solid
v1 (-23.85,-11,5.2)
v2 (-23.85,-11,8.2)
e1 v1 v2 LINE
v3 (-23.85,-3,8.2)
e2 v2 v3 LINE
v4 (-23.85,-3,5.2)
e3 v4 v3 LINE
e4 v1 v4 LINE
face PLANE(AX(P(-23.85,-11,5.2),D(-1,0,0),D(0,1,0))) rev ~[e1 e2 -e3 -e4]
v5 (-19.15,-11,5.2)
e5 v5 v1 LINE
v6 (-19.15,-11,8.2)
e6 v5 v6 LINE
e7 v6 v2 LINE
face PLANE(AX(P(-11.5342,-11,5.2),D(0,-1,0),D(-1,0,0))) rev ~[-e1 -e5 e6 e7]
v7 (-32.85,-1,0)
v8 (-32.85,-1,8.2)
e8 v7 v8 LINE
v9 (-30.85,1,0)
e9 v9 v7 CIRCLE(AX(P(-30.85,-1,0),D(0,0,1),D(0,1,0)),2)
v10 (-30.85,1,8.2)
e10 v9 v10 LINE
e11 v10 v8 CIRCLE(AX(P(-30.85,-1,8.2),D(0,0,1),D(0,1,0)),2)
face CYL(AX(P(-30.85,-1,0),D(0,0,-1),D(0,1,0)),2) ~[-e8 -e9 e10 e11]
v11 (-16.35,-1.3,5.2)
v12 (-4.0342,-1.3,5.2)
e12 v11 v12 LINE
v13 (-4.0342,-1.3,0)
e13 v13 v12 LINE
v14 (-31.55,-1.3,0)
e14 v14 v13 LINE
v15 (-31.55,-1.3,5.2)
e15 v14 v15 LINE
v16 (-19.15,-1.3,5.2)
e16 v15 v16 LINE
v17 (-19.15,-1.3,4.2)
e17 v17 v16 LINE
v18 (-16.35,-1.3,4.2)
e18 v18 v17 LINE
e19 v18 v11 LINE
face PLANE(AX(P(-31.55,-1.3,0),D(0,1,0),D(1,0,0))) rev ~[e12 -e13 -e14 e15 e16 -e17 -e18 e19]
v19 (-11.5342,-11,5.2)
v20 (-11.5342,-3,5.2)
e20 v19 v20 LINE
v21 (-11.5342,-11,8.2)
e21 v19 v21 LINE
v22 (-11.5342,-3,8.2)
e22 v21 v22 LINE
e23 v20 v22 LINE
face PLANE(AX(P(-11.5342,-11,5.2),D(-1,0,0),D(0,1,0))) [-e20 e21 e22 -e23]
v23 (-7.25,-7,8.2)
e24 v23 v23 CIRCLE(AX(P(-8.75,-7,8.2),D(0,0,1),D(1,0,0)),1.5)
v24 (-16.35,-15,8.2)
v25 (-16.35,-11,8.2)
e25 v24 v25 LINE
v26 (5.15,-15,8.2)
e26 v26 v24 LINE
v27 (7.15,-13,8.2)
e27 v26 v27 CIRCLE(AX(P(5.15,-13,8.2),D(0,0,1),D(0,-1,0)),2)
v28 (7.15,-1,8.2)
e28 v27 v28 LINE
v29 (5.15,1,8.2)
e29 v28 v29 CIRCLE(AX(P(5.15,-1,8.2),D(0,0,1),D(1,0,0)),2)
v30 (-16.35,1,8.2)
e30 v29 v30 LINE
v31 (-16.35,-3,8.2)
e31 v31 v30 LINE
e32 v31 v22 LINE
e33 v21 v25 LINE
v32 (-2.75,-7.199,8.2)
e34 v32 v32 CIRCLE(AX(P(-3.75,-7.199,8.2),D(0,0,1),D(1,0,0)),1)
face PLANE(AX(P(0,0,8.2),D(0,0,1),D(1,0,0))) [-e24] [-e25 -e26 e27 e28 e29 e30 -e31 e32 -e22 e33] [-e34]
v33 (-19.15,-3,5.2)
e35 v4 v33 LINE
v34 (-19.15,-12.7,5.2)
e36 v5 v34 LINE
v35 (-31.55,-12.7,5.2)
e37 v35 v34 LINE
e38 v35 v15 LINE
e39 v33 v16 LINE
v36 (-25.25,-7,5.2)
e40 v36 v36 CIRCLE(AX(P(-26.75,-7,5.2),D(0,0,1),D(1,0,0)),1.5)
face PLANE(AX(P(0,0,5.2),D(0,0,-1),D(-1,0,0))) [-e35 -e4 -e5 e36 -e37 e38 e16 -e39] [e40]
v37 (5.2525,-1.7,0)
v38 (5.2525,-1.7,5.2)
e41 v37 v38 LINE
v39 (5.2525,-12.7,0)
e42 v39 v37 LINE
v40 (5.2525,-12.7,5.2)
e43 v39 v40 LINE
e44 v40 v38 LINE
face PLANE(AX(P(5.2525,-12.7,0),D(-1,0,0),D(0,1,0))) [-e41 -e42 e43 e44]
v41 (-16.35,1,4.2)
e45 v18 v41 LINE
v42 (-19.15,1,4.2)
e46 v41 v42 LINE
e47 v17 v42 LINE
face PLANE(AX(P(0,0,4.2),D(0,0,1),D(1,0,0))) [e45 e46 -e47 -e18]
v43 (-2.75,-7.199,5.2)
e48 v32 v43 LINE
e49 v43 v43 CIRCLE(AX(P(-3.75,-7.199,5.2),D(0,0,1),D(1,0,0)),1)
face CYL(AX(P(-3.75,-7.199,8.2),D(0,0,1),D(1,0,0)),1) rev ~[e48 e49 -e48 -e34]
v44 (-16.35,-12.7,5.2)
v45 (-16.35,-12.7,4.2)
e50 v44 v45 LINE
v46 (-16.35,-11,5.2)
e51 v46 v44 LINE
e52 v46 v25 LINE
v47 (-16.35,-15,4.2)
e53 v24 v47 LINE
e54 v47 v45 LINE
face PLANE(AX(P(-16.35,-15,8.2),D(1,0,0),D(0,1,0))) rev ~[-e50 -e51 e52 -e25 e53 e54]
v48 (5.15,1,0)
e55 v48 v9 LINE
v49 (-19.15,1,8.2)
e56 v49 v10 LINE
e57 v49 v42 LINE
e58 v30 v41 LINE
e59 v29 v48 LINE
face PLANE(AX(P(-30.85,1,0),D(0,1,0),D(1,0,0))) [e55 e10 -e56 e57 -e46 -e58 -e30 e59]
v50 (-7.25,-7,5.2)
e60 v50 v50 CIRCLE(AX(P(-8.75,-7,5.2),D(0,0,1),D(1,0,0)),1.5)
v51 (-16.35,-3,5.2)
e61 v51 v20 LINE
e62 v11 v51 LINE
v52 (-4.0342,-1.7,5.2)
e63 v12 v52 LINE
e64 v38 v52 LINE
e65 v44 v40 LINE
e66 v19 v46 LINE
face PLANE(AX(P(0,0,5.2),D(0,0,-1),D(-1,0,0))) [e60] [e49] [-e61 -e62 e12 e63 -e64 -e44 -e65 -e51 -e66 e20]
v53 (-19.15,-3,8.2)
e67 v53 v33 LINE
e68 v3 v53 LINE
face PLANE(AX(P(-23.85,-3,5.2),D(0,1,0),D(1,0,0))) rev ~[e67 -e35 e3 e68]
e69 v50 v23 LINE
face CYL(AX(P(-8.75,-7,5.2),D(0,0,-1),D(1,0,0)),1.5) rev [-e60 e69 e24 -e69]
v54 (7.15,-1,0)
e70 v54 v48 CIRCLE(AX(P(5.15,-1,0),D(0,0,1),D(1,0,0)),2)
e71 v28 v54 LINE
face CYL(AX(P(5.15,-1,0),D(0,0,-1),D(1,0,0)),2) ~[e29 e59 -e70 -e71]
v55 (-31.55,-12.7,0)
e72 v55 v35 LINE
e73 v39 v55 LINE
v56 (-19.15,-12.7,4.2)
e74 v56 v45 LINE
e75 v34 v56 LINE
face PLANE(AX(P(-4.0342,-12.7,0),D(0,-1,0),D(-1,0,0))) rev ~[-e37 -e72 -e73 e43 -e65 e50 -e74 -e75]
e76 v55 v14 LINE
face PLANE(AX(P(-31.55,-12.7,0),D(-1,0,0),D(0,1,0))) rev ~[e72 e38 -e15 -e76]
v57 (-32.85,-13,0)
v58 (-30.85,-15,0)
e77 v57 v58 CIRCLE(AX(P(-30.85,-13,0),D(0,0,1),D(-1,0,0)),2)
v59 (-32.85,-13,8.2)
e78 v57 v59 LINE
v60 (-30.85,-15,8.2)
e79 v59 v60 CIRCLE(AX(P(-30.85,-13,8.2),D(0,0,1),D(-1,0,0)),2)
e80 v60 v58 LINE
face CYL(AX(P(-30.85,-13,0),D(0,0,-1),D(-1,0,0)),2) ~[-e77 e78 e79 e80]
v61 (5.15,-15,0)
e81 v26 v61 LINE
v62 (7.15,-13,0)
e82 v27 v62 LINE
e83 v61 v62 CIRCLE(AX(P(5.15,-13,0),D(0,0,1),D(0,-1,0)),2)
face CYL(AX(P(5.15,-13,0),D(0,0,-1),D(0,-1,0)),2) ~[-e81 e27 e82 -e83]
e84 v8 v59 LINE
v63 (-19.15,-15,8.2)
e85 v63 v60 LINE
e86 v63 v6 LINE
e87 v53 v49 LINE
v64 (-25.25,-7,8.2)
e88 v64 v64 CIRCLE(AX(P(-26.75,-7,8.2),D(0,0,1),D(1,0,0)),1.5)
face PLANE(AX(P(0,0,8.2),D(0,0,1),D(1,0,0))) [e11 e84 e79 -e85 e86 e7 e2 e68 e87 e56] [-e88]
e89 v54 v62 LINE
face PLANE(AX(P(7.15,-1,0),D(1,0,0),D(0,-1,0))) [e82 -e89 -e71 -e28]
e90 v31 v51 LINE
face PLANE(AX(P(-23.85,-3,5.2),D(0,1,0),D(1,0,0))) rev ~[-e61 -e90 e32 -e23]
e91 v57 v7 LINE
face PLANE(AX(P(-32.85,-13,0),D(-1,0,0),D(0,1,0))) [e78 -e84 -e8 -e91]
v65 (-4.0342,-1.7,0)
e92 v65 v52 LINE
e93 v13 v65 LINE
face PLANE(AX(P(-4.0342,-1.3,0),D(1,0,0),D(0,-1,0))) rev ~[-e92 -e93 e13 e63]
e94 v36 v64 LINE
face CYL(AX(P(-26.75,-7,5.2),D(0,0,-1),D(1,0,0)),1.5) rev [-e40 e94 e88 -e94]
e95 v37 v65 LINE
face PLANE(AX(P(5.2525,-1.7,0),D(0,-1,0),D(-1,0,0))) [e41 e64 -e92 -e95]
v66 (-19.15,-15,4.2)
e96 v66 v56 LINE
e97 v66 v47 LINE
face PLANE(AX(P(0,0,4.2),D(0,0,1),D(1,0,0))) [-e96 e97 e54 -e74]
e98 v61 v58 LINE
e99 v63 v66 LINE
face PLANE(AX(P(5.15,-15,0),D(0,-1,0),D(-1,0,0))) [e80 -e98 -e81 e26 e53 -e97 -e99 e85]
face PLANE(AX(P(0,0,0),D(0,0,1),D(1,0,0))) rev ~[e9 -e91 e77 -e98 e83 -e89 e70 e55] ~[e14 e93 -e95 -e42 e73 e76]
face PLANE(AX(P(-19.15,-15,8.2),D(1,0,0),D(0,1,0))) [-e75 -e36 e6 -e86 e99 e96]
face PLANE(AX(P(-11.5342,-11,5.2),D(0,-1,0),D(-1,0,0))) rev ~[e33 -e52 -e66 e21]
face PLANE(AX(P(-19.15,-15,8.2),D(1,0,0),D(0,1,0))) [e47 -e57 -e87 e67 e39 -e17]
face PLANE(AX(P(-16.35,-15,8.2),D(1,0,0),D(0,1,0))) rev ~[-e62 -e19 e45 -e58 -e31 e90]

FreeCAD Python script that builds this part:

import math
import FreeCAD as App
import Part
import Sketcher
Q = App.Units.Quantity

doc = App.newDocument("Part")
body = doc.addObject("PartDesign::Body", "Body")

# Sketch on XY plane
sketch1 = body.newObject("Sketcher::SketchObject", "Sketch")
sketch1.AttachmentSupport = (doc.getObject("XY_Plane"), [""])
sketch1.MapMode = "FlatFace"
sketch1.addGeometry(Part.LineSegment(App.Vector(5.15, 1, 0), App.Vector(-30.85, 1, 0)), False)
sketch1.addGeometry(Part.ArcOfCircle(Part.Circle(App.Vector(-30.85, -1, 0), App.Vector(0, 0, 1), 2), math.radians(90), math.radians(180)), False)
sketch1.addGeometry(Part.LineSegment(App.Vector(-32.85, -1, 0), App.Vector(-32.85, -13, 0)), False)
sketch1.addGeometry(Part.ArcOfCircle(Part.Circle(App.Vector(-30.85, -13, 0), App.Vector(0, 0, 1), 2), math.radians(180), math.radians(270)), False)
sketch1.addGeometry(Part.LineSegment(App.Vector(-30.85, -15, 0), App.Vector(5.15, -15, 0)), False)
sketch1.addGeometry(Part.ArcOfCircle(Part.Circle(App.Vector(5.15, -13, 0), App.Vector(0, 0, 1), 2), math.radians(-90), math.radians(0)), False)
sketch1.addGeometry(Part.LineSegment(App.Vector(7.15, -13, 0), App.Vector(7.15, -1, 0)), False)
sketch1.addGeometry(Part.ArcOfCircle(Part.Circle(App.Vector(5.15, -1, 0), App.Vector(0, 0, 1), 2), math.radians(0), math.radians(90)), False)
sketch1.addGeometry(Part.LineSegment(App.Vector(-5.5342, -12, 0), App.Vector(-30.85, -12, 0)), False)
sketch1.addGeometry(Part.LineSegment(App.Vector(-30.85, -12, 0), App.Vector(-30.85, -2, 0)), False)
sketch1.addGeometry(Part.LineSegment(App.Vector(-30.85, -2, 0), App.Vector(-5.5342, -2, 0)), False)
sketch1.addGeometry(Part.LineSegment(App.Vector(-5.5342, -2, 0), App.Vector(-5.5342, -12, 0)), False)
sketch1.addConstraint(Sketcher.Constraint("Tangent", 0, 2, 1, 1))
sketch1.addConstraint(Sketcher.Constraint("Tangent", 1, 2, 2, 1))
sketch1.addConstraint(Sketcher.Constraint("Tangent", 2, 2, 3, 1))
sketch1.addConstraint(Sketcher.Constraint("Tangent", 3, 2, 4, 1))
sketch1.addConstraint(Sketcher.Constraint("Tangent", 4, 2, 5, 1))
sketch1.addConstraint(Sketcher.Constraint("Tangent", 5, 2, 6, 1))
sketch1.addConstraint(Sketcher.Constraint("Tangent", 6, 2, 7, 1))
sketch1.addConstraint(Sketcher.Constraint("Tangent", 7, 2, 0, 1))
sketch1.addConstraint(Sketcher.Constraint("Coincident", 8, 2, 9, 1))
sketch1.addConstraint(Sketcher.Constraint("Coincident", 9, 2, 10, 1))
sketch1.addConstraint(Sketcher.Constraint("Coincident", 10, 2, 11, 1))
sketch1.addConstraint(Sketcher.Constraint("Coincident", 11, 2, 8, 1))
sketch1.addConstraint(Sketcher.Constraint("Horizontal", 0))
sketch1.addConstraint(Sketcher.Constraint("Vertical", 2))
sketch1.addConstraint(Sketcher.Constraint("Horizontal", 4))
sketch1.addConstraint(Sketcher.Constraint("Vertical", 6))
sketch1.addConstraint(Sketcher.Constraint("Horizontal", 8))
sketch1.addConstraint(Sketcher.Constraint("Vertical", 9))
sketch1.addConstraint(Sketcher.Constraint("Horizontal", 10))
sketch1.addConstraint(Sketcher.Constraint("Vertical", 11))
sketch1.addConstraint(Sketcher.Constraint("Equal", 1, 3))
sketch1.addConstraint(Sketcher.Constraint("Equal", 3, 5))
sketch1.addConstraint(Sketcher.Constraint("Equal", 5, 7))
sketch1.addConstraint(Sketcher.Constraint("Vertical", 3, 2, 8, 2))
sketch1.addConstraint(Sketcher.Constraint("Radius", 1, Q("2 mm")))
sketch1.addConstraint(Sketcher.Constraint("DistanceY", 9, 2, -1, 1, Q("2 mm")))
sketch1.addConstraint(Sketcher.Constraint("DistanceX", 0, 2, 0, 1, Q("36 mm")))
sketch1.addConstraint(Sketcher.Constraint("DistanceY", 2, 2, 2, 1, Q("12 mm")))
sketch1.addConstraint(Sketcher.Constraint("DistanceY", 9, 1, 9, 2, Q("10 mm")))
sketch1.addConstraint(Sketcher.Constraint("DistanceY", 1, 3, -1, 1, Q("1 mm")))
sketch1.addConstraint(Sketcher.Constraint("DistanceX", 10, 2, 6, 2, Q("12.6842 mm")))
sketch1.addConstraint(Sketcher.Constraint("DistanceX", 1, 3, -1, 1, Q("30.85 mm")))
pad1 = body.newObject("PartDesign::Pad", "Pad")
pad1.Profile = sketch1
pad1.Length = 5.2

# Sketch on XY plane
sketch2 = body.newObject("Sketcher::SketchObject", "Sketch001")
sketch2.AttachmentSupport = (doc.getObject("XY_Plane"), [""])
sketch2.MapMode = "FlatFace"
sketch2.AttachmentOffset = App.Placement(App.Vector(0, 0, 5.2), App.Rotation())
sketch2.addGeometry(Part.LineSegment(App.Vector(-30.85, -15, 0), App.Vector(5.15, -15, 0)), False)
sketch2.addGeometry(Part.ArcOfCircle(Part.Circle(App.Vector(5.15, -13, 0), App.Vector(0, 0, 1), 2), math.radians(-90), math.radians(0)), False)
sketch2.addGeometry(Part.LineSegment(App.Vector(7.15, -13, 0), App.Vector(7.15, -1, 0)), False)
sketch2.addGeometry(Part.ArcOfCircle(Part.Circle(App.Vector(5.15, -1, 0), App.Vector(0, 0, 1), 2), math.radians(0), math.radians(90)), False)
sketch2.addGeometry(Part.LineSegment(App.Vector(5.15, 1, 0), App.Vector(-30.85, 1, 0)), False)
sketch2.addGeometry(Part.ArcOfCircle(Part.Circle(App.Vector(-30.85, -1, 0), App.Vector(0, 0, 1), 2), math.radians(90), math.radians(180)), False)
sketch2.addGeometry(Part.LineSegment(App.Vector(-32.85, -1, 0), App.Vector(-32.85, -13, 0)), False)
sketch2.addGeometry(Part.ArcOfCircle(Part.Circle(App.Vector(-30.85, -13, 0), App.Vector(0, 0, 1), 2), math.radians(180), math.radians(270)), False)
sketch2.addGeometry(Part.Circle(App.Vector(-26.75, -7, 0), App.Vector(0, 0, 1), 1.5), False)
sketch2.addGeometry(Part.LineSegment(App.Vector(-23.85, -11, 0), App.Vector(-23.85, -3, 0)), False)
sketch2.addGeometry(Part.LineSegment(App.Vector(-23.85, -3, 0), App.Vector(-11.5342, -3, 0)), False)
sketch2.addGeometry(Part.LineSegment(App.Vector(-11.5342, -3, 0), App.Vector(-11.5342, -11, 0)), False)
sketch2.addGeometry(Part.LineSegment(App.Vector(-11.5342, -11, 0), App.Vector(-23.85, -11, 0)), False)
sketch2.addGeometry(Part.Circle(App.Vector(-8.75, -7, 0), App.Vector(0, 0, 1), 1.5), False)
sketch2.addConstraint(Sketcher.Constraint("Tangent", 0, 2, 1, 1))
sketch2.addConstraint(Sketcher.Constraint("Tangent", 1, 2, 2, 1))
sketch2.addConstraint(Sketcher.Constraint("Tangent", 2, 2, 3, 1))
sketch2.addConstraint(Sketcher.Constraint("Tangent", 3, 2, 4, 1))
sketch2.addConstraint(Sketcher.Constraint("Tangent", 4, 2, 5, 1))
sketch2.addConstraint(Sketcher.Constraint("Tangent", 5, 2, 6, 1))
sketch2.addConstraint(Sketcher.Constraint("Tangent", 6, 2, 7, 1))
sketch2.addConstraint(Sketcher.Constraint("Tangent", 7, 2, 0, 1))
sketch2.addConstraint(Sketcher.Constraint("Coincident", 9, 2, 10, 1))
sketch2.addConstraint(Sketcher.Constraint("Coincident", 10, 2, 11, 1))
sketch2.addConstraint(Sketcher.Constraint("Coincident", 11, 2, 12, 1))
sketch2.addConstraint(Sketcher.Constraint("Coincident", 12, 2, 9, 1))
sketch2.addConstraint(Sketcher.Constraint("Horizontal", 0))
sketch2.addConstraint(Sketcher.Constraint("Vertical", 2))
sketch2.addConstraint(Sketcher.Constraint("Horizontal", 4))
sketch2.addConstraint(Sketcher.Constraint("Vertical", 6))
sketch2.addConstraint(Sketcher.Constraint("Vertical", 9))
sketch2.addConstraint(Sketcher.Constraint("Horizontal", 10))
sketch2.addConstraint(Sketcher.Constraint("Vertical", 11))
sketch2.addConstraint(Sketcher.Constraint("Horizontal", 12))
sketch2.addConstraint(Sketcher.Constraint("Equal", 1, 3))
sketch2.addConstraint(Sketcher.Constraint("Equal", 3, 5))
sketch2.addConstraint(Sketcher.Constraint("Equal", 5, 7))
sketch2.addConstraint(Sketcher.Constraint("Equal", 8, 13))
sketch2.addConstraint(Sketcher.Constraint("Horizontal", 8, 3, 13, 3))
sketch2.addConstraint(Sketcher.Constraint("Radius", 1, Q("2 mm")))
sketch2.addConstraint(Sketcher.Constraint("Diameter", 8, Q("3 mm")))
sketch2.addConstraint(Sketcher.Constraint("DistanceY", 8, 3, -1, 1, Q("7 mm")))
sketch2.addConstraint(Sketcher.Constraint("DistanceY", 8, 3, 5, 3, Q("6 mm")))
sketch2.addConstraint(Sketcher.Constraint("DistanceY", 7, 3, 8, 3, Q("6 mm")))
sketch2.addConstraint(Sketcher.Constraint("DistanceY", 8, 3, 9, 2, Q("4 mm")))
sketch2.addConstraint(Sketcher.Constraint("DistanceX", 5, 3, 9, 2, Q("7 mm")))
sketch2.addConstraint(Sketcher.Constraint("DistanceY", 11, 2, 13, 3, Q("4 mm")))
sketch2.addConstraint(Sketcher.Constraint("DistanceX", 0, 1, 0, 2, Q("36 mm")))
sketch2.addConstraint(Sketcher.Constraint("DistanceX", 8, 3, 13, 3, Q("18 mm")))
sketch2.addConstraint(Sketcher.Constraint("DistanceX", 5, 3, 8, 3, Q("4.1 mm")))
sketch2.addConstraint(Sketcher.Constraint("DistanceX", -1, 1, 1, 3, Q("5.15 mm")))
sketch2.addConstraint(Sketcher.Constraint("DistanceX", 10, 1, 10, 2, Q("12.3158 mm")))
pad2 = body.newObject("PartDesign::Pad", "Pad001")
pad2.Profile = sketch2
pad2.Length = 3

# Sketch on XY plane
sketch3 = body.newObject("Sketcher::SketchObject", "Sketch002")
sketch3.AttachmentSupport = (doc.getObject("XY_Plane"), [""])
sketch3.MapMode = "FlatFace"
sketch3.AttachmentOffset = App.Placement(App.Vector(0, 0, 8.2), App.Rotation())
sketch3.addGeometry(Part.LineSegment(App.Vector(-19.15, -15, 0), App.Vector(-16.35, -15, 0)), False)
sketch3.addGeometry(Part.LineSegment(App.Vector(-16.35, -15, 0), App.Vector(-16.35, 1, 0)), False)
sketch3.addGeometry(Part.LineSegment(App.Vector(-16.35, 1, 0), App.Vector(-19.15, 1, 0)), False)
sketch3.addGeometry(Part.LineSegment(App.Vector(-19.15, 1, 0), App.Vector(-19.15, -15, 0)), False)
sketch3.addConstraint(Sketcher.Constraint("Coincident", 0, 2, 1, 1))
sketch3.addConstraint(Sketcher.Constraint("Coincident", 1, 2, 2, 1))
sketch3.addConstraint(Sketcher.Constraint("Coincident", 2, 2, 3, 1))
sketch3.addConstraint(Sketcher.Constraint("Coincident", 3, 2, 0, 1))
sketch3.addConstraint(Sketcher.Constraint("Horizontal", 0))
sketch3.addConstraint(Sketcher.Constraint("Vertical", 1))
sketch3.addConstraint(Sketcher.Constraint("Horizontal", 2))
sketch3.addConstraint(Sketcher.Constraint("Vertical", 3))
sketch3.addConstraint(Sketcher.Constraint("DistanceY", 1, 1, 1, 2, Q("16 mm")))
sketch3.addConstraint(Sketcher.Constraint("DistanceX", 0, 1, 0, 2, Q("2.8 mm")))
sketch3.addConstraint(Sketcher.Constraint("DistanceY", 0, 2, -1, 1, Q("15 mm")))
sketch3.addConstraint(Sketcher.Constraint("DistanceX", 0, 2, -1, 1, Q("16.35 mm")))
pocket1 = body.newObject("PartDesign::Pocket", "Pocket")
pocket1.Profile = sketch3
pocket1.Length = 4

# Sketch on XY plane
sketch4 = body.newObject("Sketcher::SketchObject", "Sketch003")
sketch4.AttachmentSupport = (doc.getObject("XY_Plane"), [""])
sketch4.MapMode = "FlatFace"
sketch4.addGeometry(Part.LineSegment(App.Vector(-4.0342, -1.3, 0), App.Vector(-4.0342, -1.7, 0)), False)
sketch4.addGeometry(Part.LineSegment(App.Vector(-4.0342, -1.7, 0), App.Vector(5.2525, -1.7, 0)), False)
sketch4.addGeometry(Part.LineSegment(App.Vector(5.2525, -1.7, 0), App.Vector(5.2525, -12.7, 0)), False)
sketch4.addGeometry(Part.LineSegment(App.Vector(5.2525, -12.7, 0), App.Vector(-31.55, -12.7, 0)), False)
sketch4.addGeometry(Part.LineSegment(App.Vector(-31.55, -12.7, 0), App.Vector(-31.55, -1.3, 0)), False)
sketch4.addGeometry(Part.LineSegment(App.Vector(-31.55, -1.3, 0), App.Vector(-4.0342, -1.3, 0)), False)
sketch4.addGeometry(Part.LineSegment(App.Vector(-5.5342, -12, 0), App.Vector(-5.5342, -2, 0)), False)
sketch4.addGeometry(Part.LineSegment(App.Vector(-5.5342, -2, 0), App.Vector(-30.85, -2, 0)), False)
sketch4.addGeometry(Part.LineSegment(App.Vector(-30.85, -2, 0), App.Vector(-30.85, -12, 0)), False)
sketch4.addGeometry(Part.LineSegment(App.Vector(-30.85, -12, 0), App.Vector(-5.5342, -12, 0)), False)
sketch4.addConstraint(Sketcher.Constraint("Coincident", 0, 2, 1, 1))
sketch4.addConstraint(Sketcher.Constraint("Coincident", 1, 2, 2, 1))
sketch4.addConstraint(Sketcher.Constraint("Coincident", 2, 2, 3, 1))
sketch4.addConstraint(Sketcher.Constraint("Coincident", 3, 2, 4, 1))
sketch4.addConstraint(Sketcher.Constraint("Coincident", 4, 2, 5, 1))
sketch4.addConstraint(Sketcher.Constraint("Coincident", 5, 2, 0, 1))
sketch4.addConstraint(Sketcher.Constraint("Coincident", 6, 2, 7, 1))
sketch4.addConstraint(Sketcher.Constraint("Coincident", 7, 2, 8, 1))
sketch4.addConstraint(Sketcher.Constraint("Coincident", 8, 2, 9, 1))
sketch4.addConstraint(Sketcher.Constraint("Coincident", 9, 2, 6, 1))
sketch4.addConstraint(Sketcher.Constraint("Vertical", 0))
sketch4.addConstraint(Sketcher.Constraint("Horizontal", 1))
sketch4.addConstraint(Sketcher.Constraint("Vertical", 2))
sketch4.addConstraint(Sketcher.Constraint("Horizontal", 3))
sketch4.addConstraint(Sketcher.Constraint("Vertical", 4))
sketch4.addConstraint(Sketcher.Constraint("Horizontal", 5))
sketch4.addConstraint(Sketcher.Constraint("Vertical", 6))
sketch4.addConstraint(Sketcher.Constraint("Horizontal", 7))
sketch4.addConstraint(Sketcher.Constraint("Vertical", 8))
sketch4.addConstraint(Sketcher.Constraint("Horizontal", 9))
sketch4.addConstraint(Sketcher.Constraint("DistanceX", 6, 2, 0, 2, Q("1.5 mm")))
sketch4.addConstraint(Sketcher.Constraint("DistanceY", 6, 2, 5, 2, Q("0.7 mm")))
sketch4.addConstraint(Sketcher.Constraint("DistanceX", 4, 2, 7, 2, Q("0.7 mm")))
sketch4.addConstraint(Sketcher.Constraint("DistanceY", 3, 2, 8, 2, Q("0.7 mm")))
sketch4.addConstraint(Sketcher.Constraint("DistanceY", 2, 2, 2, 1, Q("11 mm")))
sketch4.addConstraint(Sketcher.Constraint("DistanceY", 6, 1, 6, 2, Q("10 mm")))
sketch4.addConstraint(Sketcher.Constraint("DistanceY", 6, 2, -1, 1, Q("2 mm")))
sketch4.addConstraint(Sketcher.Constraint("DistanceX", 3, 2, -1, 1, Q("31.55 mm")))
sketch4.addConstraint(Sketcher.Constraint("DistanceX", 1, 1, 1, 2, Q("9.2867 mm")))
sketch4.addConstraint(Sketcher.Constraint("DistanceX", 3, 2, 3, 1, Q("36.8025 mm")))
pocket2 = body.newObject("PartDesign::Pocket", "Pocket001")
pocket2.Profile = sketch4
pocket2.Length = 5.2
pocket2.Reversed = True

# Sketch on XY plane
sketch5 = body.newObject("Sketcher::SketchObject", "Sketch004")
sketch5.AttachmentSupport = (doc.getObject("XY_Plane"), [""])
sketch5.MapMode = "FlatFace"
sketch5.AttachmentOffset = App.Placement(App.Vector(0, 0, 8.2), App.Rotation())
sketch5.addGeometry(Part.Circle(App.Vector(-3.75, -7.199, 0), App.Vector(0, 0, 1), 1), False)
sketch5.addConstraint(Sketcher.Constraint("Diameter", 0, Q("2 mm")))
sketch5.addConstraint(Sketcher.Constraint("DistanceX", 0, 3, -1, 1, Q("3.75 mm")))
sketch5.addConstraint(Sketcher.Constraint("DistanceY", 0, 3, -1, 1, Q("7.199 mm")))
pocket3 = body.newObject("PartDesign::Pocket", "Pocket002")
pocket3.Profile = sketch5
pocket3.Type = "ThroughAll"

doc.recompute()
